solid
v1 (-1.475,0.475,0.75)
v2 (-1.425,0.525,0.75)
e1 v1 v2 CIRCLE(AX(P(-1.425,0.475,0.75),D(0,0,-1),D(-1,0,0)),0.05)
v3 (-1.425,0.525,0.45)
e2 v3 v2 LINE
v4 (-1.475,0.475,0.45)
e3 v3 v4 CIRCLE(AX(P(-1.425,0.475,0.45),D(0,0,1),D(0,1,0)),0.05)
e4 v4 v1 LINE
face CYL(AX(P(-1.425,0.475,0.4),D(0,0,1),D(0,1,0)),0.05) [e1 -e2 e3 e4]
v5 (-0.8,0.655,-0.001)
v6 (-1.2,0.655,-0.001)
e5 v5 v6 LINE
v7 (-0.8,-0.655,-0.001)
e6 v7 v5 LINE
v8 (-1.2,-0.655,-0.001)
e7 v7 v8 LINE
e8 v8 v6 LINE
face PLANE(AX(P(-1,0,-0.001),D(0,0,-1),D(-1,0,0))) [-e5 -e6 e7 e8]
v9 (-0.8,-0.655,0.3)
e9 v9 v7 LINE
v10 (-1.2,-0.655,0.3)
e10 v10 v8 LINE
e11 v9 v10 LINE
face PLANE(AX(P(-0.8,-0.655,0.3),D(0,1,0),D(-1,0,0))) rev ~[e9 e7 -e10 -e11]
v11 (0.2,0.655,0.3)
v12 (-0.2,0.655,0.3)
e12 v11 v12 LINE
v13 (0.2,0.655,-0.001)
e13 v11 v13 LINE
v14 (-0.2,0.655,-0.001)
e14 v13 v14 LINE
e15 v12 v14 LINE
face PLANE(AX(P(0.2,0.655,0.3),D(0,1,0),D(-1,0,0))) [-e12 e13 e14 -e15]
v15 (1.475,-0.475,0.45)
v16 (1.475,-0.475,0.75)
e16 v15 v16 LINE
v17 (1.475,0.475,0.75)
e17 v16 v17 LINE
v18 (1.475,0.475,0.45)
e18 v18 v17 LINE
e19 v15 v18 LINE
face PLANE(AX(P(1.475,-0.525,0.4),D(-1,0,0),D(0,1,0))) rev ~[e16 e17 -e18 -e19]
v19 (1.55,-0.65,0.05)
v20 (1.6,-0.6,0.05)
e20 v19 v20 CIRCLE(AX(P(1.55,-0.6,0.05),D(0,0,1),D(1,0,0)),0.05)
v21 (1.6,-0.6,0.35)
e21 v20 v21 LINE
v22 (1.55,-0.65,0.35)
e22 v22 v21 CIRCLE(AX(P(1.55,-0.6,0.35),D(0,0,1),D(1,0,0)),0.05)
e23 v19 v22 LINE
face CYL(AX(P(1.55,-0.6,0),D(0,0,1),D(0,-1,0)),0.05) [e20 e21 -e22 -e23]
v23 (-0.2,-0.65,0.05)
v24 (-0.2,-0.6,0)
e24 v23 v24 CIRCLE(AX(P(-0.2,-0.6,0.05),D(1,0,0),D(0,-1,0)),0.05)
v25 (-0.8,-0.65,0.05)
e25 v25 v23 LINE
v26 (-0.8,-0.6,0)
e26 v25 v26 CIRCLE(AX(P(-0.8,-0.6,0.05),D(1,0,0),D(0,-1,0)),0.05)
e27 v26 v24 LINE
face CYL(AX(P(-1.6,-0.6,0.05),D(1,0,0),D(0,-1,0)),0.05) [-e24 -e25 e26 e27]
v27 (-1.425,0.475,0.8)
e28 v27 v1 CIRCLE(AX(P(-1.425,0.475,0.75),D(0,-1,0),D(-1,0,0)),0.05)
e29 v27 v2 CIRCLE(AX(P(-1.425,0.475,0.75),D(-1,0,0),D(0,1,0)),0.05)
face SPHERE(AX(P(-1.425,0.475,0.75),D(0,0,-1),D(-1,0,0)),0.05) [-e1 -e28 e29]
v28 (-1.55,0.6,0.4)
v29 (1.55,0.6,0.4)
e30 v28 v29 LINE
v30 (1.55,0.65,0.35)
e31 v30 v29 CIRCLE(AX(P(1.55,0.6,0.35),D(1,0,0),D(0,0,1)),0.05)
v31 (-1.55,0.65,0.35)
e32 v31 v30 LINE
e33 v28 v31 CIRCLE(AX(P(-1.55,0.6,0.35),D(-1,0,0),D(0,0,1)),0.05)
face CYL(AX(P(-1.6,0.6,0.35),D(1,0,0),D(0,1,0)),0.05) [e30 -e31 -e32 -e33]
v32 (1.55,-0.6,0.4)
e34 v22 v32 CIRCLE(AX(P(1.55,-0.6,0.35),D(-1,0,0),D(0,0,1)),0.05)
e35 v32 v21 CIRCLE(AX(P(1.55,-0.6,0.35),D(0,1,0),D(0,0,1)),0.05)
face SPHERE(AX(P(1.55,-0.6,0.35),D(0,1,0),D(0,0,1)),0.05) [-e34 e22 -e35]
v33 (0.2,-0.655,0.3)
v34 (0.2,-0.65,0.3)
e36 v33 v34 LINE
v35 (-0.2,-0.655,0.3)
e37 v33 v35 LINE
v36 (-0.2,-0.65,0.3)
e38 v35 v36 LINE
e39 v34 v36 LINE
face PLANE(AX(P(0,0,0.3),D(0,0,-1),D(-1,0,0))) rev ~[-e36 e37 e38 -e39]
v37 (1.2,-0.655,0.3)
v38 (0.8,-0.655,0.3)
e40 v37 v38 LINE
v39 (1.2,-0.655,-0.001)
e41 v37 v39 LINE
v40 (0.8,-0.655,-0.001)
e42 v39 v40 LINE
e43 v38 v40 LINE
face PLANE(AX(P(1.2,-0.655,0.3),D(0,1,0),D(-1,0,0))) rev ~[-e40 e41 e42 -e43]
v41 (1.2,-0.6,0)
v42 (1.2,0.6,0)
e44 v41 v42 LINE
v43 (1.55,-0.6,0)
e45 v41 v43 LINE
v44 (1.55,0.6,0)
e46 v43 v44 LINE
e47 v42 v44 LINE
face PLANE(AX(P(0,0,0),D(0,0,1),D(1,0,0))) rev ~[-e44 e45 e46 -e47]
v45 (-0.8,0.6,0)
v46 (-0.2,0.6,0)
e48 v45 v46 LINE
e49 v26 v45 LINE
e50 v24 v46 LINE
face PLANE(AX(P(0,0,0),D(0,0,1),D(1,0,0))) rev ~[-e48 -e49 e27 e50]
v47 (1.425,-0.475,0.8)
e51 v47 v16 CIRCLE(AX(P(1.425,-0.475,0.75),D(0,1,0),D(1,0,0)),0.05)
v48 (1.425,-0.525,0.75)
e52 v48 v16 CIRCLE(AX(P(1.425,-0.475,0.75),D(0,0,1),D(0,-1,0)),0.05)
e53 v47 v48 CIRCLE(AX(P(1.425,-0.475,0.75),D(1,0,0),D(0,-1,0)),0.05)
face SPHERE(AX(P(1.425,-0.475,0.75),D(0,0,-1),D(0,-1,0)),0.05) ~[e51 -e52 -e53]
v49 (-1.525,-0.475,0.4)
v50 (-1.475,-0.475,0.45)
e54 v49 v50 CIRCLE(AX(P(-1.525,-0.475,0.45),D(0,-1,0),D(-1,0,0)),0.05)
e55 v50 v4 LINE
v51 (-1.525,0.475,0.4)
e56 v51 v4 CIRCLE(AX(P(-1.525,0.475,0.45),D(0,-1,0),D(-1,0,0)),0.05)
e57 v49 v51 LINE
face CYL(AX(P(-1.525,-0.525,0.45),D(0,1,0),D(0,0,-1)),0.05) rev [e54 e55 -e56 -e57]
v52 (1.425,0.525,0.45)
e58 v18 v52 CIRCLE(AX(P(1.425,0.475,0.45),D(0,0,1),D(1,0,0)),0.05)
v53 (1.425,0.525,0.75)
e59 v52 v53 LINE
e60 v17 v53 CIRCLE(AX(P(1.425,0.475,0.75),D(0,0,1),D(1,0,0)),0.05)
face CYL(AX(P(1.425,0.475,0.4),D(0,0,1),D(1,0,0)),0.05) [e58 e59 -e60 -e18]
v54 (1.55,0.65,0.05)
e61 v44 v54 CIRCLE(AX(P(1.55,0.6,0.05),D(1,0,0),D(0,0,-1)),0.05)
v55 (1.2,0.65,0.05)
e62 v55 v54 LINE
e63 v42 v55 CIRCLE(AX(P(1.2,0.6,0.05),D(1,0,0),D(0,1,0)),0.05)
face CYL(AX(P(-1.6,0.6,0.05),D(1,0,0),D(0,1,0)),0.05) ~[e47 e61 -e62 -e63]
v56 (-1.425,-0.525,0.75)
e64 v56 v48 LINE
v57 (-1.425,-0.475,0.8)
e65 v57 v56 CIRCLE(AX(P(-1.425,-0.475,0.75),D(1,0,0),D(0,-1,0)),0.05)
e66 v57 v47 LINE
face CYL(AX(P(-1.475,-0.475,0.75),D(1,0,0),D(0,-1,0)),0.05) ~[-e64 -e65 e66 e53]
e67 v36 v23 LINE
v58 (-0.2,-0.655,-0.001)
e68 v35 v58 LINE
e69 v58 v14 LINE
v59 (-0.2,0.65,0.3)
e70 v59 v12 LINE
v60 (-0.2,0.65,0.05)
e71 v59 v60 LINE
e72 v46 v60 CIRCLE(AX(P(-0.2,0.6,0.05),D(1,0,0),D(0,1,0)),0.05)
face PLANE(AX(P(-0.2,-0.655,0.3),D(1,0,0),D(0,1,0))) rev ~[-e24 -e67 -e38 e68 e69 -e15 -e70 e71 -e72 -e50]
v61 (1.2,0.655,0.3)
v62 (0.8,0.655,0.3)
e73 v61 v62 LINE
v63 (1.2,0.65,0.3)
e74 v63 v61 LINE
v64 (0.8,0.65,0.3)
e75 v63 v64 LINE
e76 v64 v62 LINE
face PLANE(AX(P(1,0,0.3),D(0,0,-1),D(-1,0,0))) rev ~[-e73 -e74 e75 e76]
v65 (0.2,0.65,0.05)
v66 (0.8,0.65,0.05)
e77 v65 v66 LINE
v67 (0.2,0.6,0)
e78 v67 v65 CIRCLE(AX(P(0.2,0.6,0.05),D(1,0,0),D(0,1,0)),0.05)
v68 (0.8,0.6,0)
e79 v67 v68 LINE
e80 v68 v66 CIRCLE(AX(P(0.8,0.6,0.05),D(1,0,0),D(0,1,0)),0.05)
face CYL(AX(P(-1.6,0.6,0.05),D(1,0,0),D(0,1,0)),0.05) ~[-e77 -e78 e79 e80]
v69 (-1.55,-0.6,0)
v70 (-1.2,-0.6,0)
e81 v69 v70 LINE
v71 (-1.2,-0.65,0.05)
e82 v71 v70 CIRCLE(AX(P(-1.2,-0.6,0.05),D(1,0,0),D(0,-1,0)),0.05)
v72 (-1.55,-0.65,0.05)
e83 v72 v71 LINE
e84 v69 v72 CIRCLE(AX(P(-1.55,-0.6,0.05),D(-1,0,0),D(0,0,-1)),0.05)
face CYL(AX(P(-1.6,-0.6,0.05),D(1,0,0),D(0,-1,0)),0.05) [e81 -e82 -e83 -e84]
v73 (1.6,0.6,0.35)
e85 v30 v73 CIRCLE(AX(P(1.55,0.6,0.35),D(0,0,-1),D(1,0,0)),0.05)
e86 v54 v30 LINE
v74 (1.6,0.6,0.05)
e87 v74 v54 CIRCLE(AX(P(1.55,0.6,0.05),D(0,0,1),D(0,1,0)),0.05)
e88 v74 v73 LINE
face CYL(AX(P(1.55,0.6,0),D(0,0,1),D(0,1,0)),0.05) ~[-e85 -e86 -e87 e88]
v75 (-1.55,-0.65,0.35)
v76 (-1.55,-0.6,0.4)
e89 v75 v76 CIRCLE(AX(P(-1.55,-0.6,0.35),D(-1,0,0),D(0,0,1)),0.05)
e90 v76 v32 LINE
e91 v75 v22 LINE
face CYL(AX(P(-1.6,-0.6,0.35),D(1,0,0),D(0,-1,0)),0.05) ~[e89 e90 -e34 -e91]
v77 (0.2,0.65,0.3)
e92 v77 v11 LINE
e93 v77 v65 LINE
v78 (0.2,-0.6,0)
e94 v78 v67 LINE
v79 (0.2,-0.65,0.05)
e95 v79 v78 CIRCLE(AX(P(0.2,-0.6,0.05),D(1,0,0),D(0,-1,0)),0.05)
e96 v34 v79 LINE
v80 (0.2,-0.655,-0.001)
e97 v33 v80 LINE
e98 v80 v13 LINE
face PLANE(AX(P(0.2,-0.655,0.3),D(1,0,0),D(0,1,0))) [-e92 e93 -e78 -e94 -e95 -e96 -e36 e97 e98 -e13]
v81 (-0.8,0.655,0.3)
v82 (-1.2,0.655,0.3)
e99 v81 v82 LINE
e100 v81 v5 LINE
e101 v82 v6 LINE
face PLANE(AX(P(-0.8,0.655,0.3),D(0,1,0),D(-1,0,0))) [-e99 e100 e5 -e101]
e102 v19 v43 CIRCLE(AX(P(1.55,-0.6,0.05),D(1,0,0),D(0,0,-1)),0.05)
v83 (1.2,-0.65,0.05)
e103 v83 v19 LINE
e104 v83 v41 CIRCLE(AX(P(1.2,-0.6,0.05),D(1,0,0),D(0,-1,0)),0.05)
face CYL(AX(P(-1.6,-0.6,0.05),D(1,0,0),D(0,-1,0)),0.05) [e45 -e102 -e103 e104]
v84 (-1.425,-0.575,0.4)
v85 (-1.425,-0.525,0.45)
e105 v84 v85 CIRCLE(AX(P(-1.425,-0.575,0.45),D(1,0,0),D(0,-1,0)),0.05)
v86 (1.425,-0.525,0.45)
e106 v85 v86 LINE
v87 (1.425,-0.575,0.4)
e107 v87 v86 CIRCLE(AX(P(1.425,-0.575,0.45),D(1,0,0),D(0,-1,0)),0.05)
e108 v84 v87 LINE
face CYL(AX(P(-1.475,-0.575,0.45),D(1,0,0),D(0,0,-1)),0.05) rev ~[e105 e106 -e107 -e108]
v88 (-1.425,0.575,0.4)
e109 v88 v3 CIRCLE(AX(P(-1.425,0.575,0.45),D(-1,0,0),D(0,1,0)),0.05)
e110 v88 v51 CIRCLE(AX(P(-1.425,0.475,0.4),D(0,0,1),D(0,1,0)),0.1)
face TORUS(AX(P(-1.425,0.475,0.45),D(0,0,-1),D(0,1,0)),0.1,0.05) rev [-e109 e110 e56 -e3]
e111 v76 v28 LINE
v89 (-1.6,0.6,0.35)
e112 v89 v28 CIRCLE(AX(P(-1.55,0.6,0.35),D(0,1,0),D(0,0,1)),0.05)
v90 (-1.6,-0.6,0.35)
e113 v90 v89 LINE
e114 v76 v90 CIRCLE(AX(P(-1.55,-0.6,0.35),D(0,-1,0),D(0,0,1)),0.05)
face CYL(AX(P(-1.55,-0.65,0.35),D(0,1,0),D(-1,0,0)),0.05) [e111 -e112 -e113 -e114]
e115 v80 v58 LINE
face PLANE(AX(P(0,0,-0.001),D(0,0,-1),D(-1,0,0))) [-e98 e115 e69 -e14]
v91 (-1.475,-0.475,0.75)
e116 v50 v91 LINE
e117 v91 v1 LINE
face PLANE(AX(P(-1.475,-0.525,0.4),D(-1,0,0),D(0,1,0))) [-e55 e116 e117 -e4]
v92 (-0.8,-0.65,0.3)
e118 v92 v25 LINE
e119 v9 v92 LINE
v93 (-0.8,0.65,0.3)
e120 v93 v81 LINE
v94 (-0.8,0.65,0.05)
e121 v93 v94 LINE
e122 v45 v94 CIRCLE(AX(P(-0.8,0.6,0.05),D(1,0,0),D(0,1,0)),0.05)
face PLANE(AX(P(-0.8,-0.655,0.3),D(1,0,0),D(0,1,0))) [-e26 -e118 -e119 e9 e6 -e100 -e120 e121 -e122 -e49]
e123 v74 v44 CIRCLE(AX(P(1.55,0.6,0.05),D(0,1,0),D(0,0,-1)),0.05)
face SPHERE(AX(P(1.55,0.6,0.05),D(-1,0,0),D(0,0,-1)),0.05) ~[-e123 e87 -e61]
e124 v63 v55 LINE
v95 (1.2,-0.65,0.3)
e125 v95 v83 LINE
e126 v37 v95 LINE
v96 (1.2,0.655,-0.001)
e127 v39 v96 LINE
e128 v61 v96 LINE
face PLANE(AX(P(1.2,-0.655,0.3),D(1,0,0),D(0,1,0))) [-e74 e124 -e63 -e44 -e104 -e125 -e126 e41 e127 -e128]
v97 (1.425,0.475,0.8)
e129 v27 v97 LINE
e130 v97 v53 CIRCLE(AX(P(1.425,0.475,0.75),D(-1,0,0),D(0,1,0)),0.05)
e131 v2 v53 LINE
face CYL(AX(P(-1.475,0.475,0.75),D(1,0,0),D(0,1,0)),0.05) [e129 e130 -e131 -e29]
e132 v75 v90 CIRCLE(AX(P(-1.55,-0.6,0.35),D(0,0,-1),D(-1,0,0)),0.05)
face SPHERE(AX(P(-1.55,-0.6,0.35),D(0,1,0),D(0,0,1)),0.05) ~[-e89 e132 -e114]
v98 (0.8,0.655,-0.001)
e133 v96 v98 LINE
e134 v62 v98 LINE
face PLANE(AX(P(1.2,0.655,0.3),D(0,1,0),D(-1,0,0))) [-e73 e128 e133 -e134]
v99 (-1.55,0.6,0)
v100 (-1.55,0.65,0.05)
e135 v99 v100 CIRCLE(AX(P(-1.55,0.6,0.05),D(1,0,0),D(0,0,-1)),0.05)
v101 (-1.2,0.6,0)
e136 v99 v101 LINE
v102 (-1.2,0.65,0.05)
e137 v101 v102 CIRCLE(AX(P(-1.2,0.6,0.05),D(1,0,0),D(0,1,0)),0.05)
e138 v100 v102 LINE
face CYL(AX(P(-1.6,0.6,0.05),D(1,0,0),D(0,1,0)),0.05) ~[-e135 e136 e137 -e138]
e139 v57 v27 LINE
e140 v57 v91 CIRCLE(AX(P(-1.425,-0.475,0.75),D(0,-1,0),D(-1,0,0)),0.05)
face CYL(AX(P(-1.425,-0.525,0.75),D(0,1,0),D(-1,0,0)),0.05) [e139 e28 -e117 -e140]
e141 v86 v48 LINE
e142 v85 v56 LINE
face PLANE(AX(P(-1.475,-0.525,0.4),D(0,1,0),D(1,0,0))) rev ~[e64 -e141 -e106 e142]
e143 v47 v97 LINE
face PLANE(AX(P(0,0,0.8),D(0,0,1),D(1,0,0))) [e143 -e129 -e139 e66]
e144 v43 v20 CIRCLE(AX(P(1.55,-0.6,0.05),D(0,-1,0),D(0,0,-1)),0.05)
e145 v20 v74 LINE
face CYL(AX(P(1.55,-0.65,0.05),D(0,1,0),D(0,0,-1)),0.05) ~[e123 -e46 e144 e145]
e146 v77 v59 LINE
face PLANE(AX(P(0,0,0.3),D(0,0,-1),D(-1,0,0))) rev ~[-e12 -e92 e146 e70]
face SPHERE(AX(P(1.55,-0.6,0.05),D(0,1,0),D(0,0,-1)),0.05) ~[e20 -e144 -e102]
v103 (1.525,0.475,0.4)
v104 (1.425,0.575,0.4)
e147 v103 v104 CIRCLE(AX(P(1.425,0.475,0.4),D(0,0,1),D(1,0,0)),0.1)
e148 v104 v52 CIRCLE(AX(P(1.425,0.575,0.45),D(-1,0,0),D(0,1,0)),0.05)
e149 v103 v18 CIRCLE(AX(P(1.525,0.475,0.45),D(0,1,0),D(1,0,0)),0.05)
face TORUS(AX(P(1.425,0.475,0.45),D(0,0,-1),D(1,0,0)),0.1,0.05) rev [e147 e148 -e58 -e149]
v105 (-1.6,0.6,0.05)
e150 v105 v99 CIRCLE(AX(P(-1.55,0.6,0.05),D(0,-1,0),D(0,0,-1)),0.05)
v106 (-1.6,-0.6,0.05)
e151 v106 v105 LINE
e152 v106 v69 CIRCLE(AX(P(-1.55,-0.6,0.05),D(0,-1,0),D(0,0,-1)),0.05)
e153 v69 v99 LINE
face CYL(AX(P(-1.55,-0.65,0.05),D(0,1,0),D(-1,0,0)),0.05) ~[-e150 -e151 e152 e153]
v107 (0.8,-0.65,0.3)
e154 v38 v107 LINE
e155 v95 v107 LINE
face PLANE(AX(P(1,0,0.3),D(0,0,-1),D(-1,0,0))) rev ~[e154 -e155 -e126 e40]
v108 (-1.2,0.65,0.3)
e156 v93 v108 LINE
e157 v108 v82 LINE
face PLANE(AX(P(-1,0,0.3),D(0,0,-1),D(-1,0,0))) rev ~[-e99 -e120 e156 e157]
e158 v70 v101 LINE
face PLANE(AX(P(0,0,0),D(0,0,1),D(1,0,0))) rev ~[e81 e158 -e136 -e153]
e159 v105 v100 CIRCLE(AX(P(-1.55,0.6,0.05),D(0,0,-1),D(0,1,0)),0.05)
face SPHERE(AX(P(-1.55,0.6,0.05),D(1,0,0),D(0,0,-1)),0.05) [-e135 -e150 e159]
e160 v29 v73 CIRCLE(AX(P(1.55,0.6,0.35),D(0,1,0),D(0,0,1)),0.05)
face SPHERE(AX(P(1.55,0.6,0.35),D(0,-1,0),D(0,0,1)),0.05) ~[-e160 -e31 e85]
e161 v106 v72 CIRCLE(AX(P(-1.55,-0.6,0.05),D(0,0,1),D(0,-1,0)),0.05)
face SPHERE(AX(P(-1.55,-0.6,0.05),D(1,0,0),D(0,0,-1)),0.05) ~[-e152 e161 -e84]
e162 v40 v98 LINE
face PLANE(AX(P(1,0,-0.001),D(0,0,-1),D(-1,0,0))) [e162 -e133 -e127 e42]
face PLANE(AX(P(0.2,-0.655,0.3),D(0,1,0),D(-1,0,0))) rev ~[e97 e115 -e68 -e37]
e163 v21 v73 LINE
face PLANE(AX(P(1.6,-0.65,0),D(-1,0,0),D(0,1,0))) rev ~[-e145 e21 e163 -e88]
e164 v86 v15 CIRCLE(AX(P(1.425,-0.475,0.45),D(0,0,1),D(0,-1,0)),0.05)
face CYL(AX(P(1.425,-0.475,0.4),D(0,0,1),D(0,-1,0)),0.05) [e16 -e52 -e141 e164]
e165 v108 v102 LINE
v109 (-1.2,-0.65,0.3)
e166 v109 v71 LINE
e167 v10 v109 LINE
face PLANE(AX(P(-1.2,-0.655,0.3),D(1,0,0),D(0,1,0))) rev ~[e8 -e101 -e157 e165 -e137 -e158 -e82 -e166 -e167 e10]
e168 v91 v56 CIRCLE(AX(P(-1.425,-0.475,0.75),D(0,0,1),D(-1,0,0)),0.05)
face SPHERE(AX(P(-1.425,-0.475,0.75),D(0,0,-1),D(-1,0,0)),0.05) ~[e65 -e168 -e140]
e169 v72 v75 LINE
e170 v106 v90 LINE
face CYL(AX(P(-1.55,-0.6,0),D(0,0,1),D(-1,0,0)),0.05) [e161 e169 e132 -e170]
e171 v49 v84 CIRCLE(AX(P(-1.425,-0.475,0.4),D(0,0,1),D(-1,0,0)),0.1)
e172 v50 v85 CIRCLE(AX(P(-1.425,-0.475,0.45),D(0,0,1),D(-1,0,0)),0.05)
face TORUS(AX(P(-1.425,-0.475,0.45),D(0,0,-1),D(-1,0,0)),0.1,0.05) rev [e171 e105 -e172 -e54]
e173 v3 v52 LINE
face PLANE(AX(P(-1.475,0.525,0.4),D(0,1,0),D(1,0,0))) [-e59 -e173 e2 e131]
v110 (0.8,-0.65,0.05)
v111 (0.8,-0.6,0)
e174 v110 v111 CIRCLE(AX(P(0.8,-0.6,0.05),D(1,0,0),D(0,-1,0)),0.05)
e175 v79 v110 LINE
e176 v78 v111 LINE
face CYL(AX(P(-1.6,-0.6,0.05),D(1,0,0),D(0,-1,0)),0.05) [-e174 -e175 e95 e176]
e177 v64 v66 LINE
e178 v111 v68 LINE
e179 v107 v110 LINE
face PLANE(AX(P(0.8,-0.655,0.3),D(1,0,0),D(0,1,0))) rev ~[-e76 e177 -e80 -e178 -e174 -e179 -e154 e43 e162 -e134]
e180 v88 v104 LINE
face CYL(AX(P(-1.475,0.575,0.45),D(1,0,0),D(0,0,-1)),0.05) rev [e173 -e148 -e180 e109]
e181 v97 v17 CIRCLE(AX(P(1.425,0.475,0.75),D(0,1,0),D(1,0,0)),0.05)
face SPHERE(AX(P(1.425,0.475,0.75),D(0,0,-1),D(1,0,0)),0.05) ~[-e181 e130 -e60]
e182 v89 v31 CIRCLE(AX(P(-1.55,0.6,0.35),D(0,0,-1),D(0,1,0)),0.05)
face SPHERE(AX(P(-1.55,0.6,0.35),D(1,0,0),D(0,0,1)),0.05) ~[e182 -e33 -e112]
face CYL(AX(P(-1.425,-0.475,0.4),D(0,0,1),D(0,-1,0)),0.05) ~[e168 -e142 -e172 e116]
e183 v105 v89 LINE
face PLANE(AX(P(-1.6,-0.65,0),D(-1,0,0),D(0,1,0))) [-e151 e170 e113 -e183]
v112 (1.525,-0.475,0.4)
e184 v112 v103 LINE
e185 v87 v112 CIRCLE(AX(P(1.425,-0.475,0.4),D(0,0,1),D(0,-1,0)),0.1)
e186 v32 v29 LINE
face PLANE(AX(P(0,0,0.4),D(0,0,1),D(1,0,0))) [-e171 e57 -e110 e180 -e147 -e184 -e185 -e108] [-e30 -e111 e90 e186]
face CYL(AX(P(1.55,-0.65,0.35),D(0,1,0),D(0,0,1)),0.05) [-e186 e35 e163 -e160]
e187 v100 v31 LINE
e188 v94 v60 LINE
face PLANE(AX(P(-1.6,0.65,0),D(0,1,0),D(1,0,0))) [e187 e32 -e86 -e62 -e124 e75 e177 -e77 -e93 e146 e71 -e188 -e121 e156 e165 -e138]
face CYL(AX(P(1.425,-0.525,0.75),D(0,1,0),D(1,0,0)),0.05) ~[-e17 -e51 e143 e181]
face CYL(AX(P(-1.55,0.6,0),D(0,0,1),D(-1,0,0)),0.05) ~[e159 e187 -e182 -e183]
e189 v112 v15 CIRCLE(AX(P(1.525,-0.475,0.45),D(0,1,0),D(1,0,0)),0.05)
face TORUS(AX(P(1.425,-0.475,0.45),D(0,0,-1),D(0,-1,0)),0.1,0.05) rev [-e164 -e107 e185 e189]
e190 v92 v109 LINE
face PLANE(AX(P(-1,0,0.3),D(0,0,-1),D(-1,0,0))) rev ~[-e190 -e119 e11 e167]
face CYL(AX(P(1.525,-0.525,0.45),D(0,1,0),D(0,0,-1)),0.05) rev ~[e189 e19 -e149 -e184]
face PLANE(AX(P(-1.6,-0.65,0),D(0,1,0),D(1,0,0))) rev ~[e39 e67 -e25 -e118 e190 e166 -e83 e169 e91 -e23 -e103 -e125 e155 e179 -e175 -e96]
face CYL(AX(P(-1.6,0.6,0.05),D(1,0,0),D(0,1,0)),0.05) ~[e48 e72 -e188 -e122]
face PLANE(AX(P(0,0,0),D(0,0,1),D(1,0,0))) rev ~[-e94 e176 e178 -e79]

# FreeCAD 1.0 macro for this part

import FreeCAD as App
import Part
import Sketcher
from FreeCAD import Vector
Q = App.Units.Quantity


def add_polygon(sketch, points):
    """Adds a closed chain of lines whose ends are joined by coincident constraints."""
    first, n = sketch.GeometryCount, len(points)
    for a, b in zip(points, points[1:] + points[:1]):
        sketch.addGeometry(Part.LineSegment(App.Vector(*a, 0), App.Vector(*b, 0)), False)
    for i in range(n):
        sketch.addConstraint(Sketcher.Constraint("Coincident", first + i, 2, first + (i + 1) % n, 1))

doc = App.newDocument("Part")
body = doc.addObject("PartDesign::Body", "Body")

sketch1 = body.newObject("Sketcher::SketchObject", "Sketch")
sketch1.AttachmentSupport = (doc.getObject("XY_Plane"), [""])
sketch1.MapMode = "FlatFace"
add_polygon(sketch1, [(-1.6, 0.65), (-1.6, -0.65), (1.6, -0.65), (1.6, 0.65)])
sketch1.addConstraint([
    Sketcher.Constraint("Vertical", 0),
    Sketcher.Constraint("Horizontal", 1),
    Sketcher.Constraint("Vertical", 2),
    Sketcher.Constraint("Horizontal", 3),
    Sketcher.Constraint("Symmetric", 0, 2, 2, 2, -1, 1),
    Sketcher.Constraint("DistanceX", 1, 1, 1, 2, Q("3.2 mm")),
    Sketcher.Constraint("DistanceY", 0, 2, 0, 1, Q("1.3 mm")),
])
pad1 = body.newObject("PartDesign::Pad", "Pad")
pad1.Profile = sketch1
pad1.Length = 0.4

sketch2 = body.newObject("Sketcher::SketchObject", "Sketch001")
sketch2.AttachmentSupport = (doc.getObject("XY_Plane"), [""])
sketch2.MapMode = "FlatFace"
sketch2.AttachmentOffset = App.Placement(Vector(0, 0, 0.4), App.Rotation())
add_polygon(sketch2, [(-1.475, 0.525), (-1.475, -0.525), (1.475, -0.525), (1.475, 0.525)])
sketch2.addConstraint([
    Sketcher.Constraint("Vertical", 0),
    Sketcher.Constraint("Horizontal", 1),
    Sketcher.Constraint("Vertical", 2),
    Sketcher.Constraint("Horizontal", 3),
    Sketcher.Constraint("Symmetric", 0, 2, 2, 2, -1, 1),
    Sketcher.Constraint("DistanceX", 1, 1, 1, 2, Q("2.95 mm")),
    Sketcher.Constraint("DistanceY", 0, 2, 0, 1, Q("1.05 mm")),
])
pad2 = body.newObject("PartDesign::Pad", "Pad001")
pad2.Profile = sketch2
pad2.Length = 0.4
doc.recompute()

fillet = body.newObject("PartDesign::Fillet", "Fillet")
fillet.Base = (pad2, ["Edge1"])
fillet.UseAllEdges = True
fillet.Radius = 0.05

sketch3 = body.newObject("Sketcher::SketchObject", "Sketch002")
sketch3.AttachmentSupport = (doc.getObject("XY_Plane"), [""])
sketch3.MapMode = "FlatFace"
add_polygon(sketch3, [(-0.8, 0.655), (-0.8, -0.655), (-1.2, -0.655), (-1.2, 0.655)])
add_polygon(sketch3, [(0.2, 0.655), (0.2, -0.655), (-0.2, -0.655), (-0.2, 0.655)])
add_polygon(sketch3, [(1.2, 0.655), (1.2, -0.655), (0.8, -0.655), (0.8, 0.655)])
sketch3.addConstraint([
    Sketcher.Constraint("Vertical", 0),
    Sketcher.Constraint("Horizontal", 1),
    Sketcher.Constraint("Vertical", 2),
    Sketcher.Constraint("Horizontal", 3),
    Sketcher.Constraint("Vertical", 4),
    Sketcher.Constraint("Horizontal", 5),
    Sketcher.Constraint("Vertical", 6),
    Sketcher.Constraint("Horizontal", 7),
    Sketcher.Constraint("Vertical", 8),
    Sketcher.Constraint("Horizontal", 9),
    Sketcher.Constraint("Vertical", 10),
    Sketcher.Constraint("Horizontal", 11),
    Sketcher.Constraint("Symmetric", 4, 2, 6, 2, -1, 1),
    Sketcher.Constraint("Symmetric", 2, 2, 8, 2, -1, 1),
    Sketcher.Constraint("Symmetric", 0, 2, 10, 2, -1, 1),
    Sketcher.Constraint("Horizontal", 1, 2, 4, 2),
    Sketcher.Constraint("Horizontal", 3, 2, 6, 2),
    Sketcher.Constraint("Equal", 3, 5),
    Sketcher.Constraint("DistanceX", 1, 2, 1, 1, Q("0.4 mm")),
    Sketcher.Constraint("DistanceX", 0, 2, 4, 2, Q("1 mm")),
    Sketcher.Constraint("DistanceY", 0, 2, 0, 1, Q("1.31 mm")),
])
pad3 = body.newObject("PartDesign::Pad", "Pad002")
pad3.Profile = sketch3
pad3.Type = "TwoLengths"
pad3.Length = 0.001
pad3.Length2 = 0.3
pad3.Reversed = True

doc.recompute()
